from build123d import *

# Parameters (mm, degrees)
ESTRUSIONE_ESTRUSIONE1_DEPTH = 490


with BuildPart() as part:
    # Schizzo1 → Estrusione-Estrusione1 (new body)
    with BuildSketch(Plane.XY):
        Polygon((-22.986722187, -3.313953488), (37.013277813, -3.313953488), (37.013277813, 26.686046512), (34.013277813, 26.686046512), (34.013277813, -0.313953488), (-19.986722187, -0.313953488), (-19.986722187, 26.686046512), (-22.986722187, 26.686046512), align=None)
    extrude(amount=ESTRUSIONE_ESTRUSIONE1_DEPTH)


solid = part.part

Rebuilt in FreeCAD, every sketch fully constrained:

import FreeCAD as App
import Part
import Sketcher
from FreeCAD import Vector
Q = App.Units.Quantity

doc = App.newDocument("Part")
body = doc.addObject("PartDesign::Body", "Body")

# Sketch on XY plane
sketch1 = body.newObject("Sketcher::SketchObject", "Sketch")
sketch1.AttachmentSupport = (doc.getObject("XY_Plane"), [""])
sketch1.MapMode = "FlatFace"
sketch1.addGeometry(Part.LineSegment(Vector(-23, -3.3, 0), Vector(37, -3.3, 0)), False)
sketch1.addGeometry(Part.LineSegment(Vector(37, -3.3, 0), Vector(37, 26.7, 0)), False)
sketch1.addGeometry(Part.LineSegment(Vector(37, 26.7, 0), Vector(34, 26.7, 0)), False)
sketch1.addGeometry(Part.LineSegment(Vector(34, 26.7, 0), Vector(34, -0.3, 0)), False)
sketch1.addGeometry(Part.LineSegment(Vector(34, -0.3, 0), Vector(-20, -0.3, 0)), False)
sketch1.addGeometry(Part.LineSegment(Vector(-20, -0.3, 0), Vector(-20, 26.7, 0)), False)
sketch1.addGeometry(Part.LineSegment(Vector(-20, 26.7, 0), Vector(-23, 26.7, 0)), False)
sketch1.addGeometry(Part.LineSegment(Vector(-23, 26.7, 0), Vector(-23, -3.3, 0)), False)
sketch1.addConstraint(Sketcher.Constraint("Coincident", 0, 2, 1, 1))
sketch1.addConstraint(Sketcher.Constraint("Coincident", 1, 2, 2, 1))
sketch1.addConstraint(Sketcher.Constraint("Coincident", 2, 2, 3, 1))
sketch1.addConstraint(Sketcher.Constraint("Coincident", 3, 2, 4, 1))
sketch1.addConstraint(Sketcher.Constraint("Coincident", 4, 2, 5, 1))
sketch1.addConstraint(Sketcher.Constraint("Coincident", 5, 2, 6, 1))
sketch1.addConstraint(Sketcher.Constraint("Coincident", 6, 2, 7, 1))
sketch1.addConstraint(Sketcher.Constraint("Coincident", 7, 2, 0, 1))
sketch1.addConstraint(Sketcher.Constraint("Horizontal", 0))
sketch1.addConstraint(Sketcher.Constraint("Vertical", 1))
sketch1.addConstraint(Sketcher.Constraint("Horizontal", 2))
sketch1.addConstraint(Sketcher.Constraint("Vertical", 3))
sketch1.addConstraint(Sketcher.Constraint("Horizontal", 4))
sketch1.addConstraint(Sketcher.Constraint("Vertical", 5))
sketch1.addConstraint(Sketcher.Constraint("Horizontal", 6))
sketch1.addConstraint(Sketcher.Constraint("Vertical", 7))
sketch1.addConstraint(Sketcher.Constraint("Horizontal", 2, 2, 5, 2))
sketch1.addConstraint(Sketcher.Constraint("Equal", 2, 6))
sketch1.addConstraint(Sketcher.Constraint("DistanceX", 0, 1, 0, 2, Q("60 mm")))
sketch1.addConstraint(Sketcher.Constraint("DistanceX", 2, 2, 2, 1, Q("3 mm")))
sketch1.addConstraint(Sketcher.Constraint("DistanceY", 1, 1, 1, 2, Q("30 mm")))
sketch1.addConstraint(Sketcher.Constraint("DistanceY", 3, 2, 3, 1, Q("27 mm")))
sketch1.addConstraint(Sketcher.Constraint("DistanceX", -1, 1, 0, 2, Q("37.013278 mm")))
sketch1.addConstraint(Sketcher.Constraint("DistanceY", 0, 2, -1, 1, Q("3.313953 mm")))
pad1 = body.newObject("PartDesign::Pad", "Pad")
pad1.Profile = sketch1
pad1.Length = 490

doc.recompute()
